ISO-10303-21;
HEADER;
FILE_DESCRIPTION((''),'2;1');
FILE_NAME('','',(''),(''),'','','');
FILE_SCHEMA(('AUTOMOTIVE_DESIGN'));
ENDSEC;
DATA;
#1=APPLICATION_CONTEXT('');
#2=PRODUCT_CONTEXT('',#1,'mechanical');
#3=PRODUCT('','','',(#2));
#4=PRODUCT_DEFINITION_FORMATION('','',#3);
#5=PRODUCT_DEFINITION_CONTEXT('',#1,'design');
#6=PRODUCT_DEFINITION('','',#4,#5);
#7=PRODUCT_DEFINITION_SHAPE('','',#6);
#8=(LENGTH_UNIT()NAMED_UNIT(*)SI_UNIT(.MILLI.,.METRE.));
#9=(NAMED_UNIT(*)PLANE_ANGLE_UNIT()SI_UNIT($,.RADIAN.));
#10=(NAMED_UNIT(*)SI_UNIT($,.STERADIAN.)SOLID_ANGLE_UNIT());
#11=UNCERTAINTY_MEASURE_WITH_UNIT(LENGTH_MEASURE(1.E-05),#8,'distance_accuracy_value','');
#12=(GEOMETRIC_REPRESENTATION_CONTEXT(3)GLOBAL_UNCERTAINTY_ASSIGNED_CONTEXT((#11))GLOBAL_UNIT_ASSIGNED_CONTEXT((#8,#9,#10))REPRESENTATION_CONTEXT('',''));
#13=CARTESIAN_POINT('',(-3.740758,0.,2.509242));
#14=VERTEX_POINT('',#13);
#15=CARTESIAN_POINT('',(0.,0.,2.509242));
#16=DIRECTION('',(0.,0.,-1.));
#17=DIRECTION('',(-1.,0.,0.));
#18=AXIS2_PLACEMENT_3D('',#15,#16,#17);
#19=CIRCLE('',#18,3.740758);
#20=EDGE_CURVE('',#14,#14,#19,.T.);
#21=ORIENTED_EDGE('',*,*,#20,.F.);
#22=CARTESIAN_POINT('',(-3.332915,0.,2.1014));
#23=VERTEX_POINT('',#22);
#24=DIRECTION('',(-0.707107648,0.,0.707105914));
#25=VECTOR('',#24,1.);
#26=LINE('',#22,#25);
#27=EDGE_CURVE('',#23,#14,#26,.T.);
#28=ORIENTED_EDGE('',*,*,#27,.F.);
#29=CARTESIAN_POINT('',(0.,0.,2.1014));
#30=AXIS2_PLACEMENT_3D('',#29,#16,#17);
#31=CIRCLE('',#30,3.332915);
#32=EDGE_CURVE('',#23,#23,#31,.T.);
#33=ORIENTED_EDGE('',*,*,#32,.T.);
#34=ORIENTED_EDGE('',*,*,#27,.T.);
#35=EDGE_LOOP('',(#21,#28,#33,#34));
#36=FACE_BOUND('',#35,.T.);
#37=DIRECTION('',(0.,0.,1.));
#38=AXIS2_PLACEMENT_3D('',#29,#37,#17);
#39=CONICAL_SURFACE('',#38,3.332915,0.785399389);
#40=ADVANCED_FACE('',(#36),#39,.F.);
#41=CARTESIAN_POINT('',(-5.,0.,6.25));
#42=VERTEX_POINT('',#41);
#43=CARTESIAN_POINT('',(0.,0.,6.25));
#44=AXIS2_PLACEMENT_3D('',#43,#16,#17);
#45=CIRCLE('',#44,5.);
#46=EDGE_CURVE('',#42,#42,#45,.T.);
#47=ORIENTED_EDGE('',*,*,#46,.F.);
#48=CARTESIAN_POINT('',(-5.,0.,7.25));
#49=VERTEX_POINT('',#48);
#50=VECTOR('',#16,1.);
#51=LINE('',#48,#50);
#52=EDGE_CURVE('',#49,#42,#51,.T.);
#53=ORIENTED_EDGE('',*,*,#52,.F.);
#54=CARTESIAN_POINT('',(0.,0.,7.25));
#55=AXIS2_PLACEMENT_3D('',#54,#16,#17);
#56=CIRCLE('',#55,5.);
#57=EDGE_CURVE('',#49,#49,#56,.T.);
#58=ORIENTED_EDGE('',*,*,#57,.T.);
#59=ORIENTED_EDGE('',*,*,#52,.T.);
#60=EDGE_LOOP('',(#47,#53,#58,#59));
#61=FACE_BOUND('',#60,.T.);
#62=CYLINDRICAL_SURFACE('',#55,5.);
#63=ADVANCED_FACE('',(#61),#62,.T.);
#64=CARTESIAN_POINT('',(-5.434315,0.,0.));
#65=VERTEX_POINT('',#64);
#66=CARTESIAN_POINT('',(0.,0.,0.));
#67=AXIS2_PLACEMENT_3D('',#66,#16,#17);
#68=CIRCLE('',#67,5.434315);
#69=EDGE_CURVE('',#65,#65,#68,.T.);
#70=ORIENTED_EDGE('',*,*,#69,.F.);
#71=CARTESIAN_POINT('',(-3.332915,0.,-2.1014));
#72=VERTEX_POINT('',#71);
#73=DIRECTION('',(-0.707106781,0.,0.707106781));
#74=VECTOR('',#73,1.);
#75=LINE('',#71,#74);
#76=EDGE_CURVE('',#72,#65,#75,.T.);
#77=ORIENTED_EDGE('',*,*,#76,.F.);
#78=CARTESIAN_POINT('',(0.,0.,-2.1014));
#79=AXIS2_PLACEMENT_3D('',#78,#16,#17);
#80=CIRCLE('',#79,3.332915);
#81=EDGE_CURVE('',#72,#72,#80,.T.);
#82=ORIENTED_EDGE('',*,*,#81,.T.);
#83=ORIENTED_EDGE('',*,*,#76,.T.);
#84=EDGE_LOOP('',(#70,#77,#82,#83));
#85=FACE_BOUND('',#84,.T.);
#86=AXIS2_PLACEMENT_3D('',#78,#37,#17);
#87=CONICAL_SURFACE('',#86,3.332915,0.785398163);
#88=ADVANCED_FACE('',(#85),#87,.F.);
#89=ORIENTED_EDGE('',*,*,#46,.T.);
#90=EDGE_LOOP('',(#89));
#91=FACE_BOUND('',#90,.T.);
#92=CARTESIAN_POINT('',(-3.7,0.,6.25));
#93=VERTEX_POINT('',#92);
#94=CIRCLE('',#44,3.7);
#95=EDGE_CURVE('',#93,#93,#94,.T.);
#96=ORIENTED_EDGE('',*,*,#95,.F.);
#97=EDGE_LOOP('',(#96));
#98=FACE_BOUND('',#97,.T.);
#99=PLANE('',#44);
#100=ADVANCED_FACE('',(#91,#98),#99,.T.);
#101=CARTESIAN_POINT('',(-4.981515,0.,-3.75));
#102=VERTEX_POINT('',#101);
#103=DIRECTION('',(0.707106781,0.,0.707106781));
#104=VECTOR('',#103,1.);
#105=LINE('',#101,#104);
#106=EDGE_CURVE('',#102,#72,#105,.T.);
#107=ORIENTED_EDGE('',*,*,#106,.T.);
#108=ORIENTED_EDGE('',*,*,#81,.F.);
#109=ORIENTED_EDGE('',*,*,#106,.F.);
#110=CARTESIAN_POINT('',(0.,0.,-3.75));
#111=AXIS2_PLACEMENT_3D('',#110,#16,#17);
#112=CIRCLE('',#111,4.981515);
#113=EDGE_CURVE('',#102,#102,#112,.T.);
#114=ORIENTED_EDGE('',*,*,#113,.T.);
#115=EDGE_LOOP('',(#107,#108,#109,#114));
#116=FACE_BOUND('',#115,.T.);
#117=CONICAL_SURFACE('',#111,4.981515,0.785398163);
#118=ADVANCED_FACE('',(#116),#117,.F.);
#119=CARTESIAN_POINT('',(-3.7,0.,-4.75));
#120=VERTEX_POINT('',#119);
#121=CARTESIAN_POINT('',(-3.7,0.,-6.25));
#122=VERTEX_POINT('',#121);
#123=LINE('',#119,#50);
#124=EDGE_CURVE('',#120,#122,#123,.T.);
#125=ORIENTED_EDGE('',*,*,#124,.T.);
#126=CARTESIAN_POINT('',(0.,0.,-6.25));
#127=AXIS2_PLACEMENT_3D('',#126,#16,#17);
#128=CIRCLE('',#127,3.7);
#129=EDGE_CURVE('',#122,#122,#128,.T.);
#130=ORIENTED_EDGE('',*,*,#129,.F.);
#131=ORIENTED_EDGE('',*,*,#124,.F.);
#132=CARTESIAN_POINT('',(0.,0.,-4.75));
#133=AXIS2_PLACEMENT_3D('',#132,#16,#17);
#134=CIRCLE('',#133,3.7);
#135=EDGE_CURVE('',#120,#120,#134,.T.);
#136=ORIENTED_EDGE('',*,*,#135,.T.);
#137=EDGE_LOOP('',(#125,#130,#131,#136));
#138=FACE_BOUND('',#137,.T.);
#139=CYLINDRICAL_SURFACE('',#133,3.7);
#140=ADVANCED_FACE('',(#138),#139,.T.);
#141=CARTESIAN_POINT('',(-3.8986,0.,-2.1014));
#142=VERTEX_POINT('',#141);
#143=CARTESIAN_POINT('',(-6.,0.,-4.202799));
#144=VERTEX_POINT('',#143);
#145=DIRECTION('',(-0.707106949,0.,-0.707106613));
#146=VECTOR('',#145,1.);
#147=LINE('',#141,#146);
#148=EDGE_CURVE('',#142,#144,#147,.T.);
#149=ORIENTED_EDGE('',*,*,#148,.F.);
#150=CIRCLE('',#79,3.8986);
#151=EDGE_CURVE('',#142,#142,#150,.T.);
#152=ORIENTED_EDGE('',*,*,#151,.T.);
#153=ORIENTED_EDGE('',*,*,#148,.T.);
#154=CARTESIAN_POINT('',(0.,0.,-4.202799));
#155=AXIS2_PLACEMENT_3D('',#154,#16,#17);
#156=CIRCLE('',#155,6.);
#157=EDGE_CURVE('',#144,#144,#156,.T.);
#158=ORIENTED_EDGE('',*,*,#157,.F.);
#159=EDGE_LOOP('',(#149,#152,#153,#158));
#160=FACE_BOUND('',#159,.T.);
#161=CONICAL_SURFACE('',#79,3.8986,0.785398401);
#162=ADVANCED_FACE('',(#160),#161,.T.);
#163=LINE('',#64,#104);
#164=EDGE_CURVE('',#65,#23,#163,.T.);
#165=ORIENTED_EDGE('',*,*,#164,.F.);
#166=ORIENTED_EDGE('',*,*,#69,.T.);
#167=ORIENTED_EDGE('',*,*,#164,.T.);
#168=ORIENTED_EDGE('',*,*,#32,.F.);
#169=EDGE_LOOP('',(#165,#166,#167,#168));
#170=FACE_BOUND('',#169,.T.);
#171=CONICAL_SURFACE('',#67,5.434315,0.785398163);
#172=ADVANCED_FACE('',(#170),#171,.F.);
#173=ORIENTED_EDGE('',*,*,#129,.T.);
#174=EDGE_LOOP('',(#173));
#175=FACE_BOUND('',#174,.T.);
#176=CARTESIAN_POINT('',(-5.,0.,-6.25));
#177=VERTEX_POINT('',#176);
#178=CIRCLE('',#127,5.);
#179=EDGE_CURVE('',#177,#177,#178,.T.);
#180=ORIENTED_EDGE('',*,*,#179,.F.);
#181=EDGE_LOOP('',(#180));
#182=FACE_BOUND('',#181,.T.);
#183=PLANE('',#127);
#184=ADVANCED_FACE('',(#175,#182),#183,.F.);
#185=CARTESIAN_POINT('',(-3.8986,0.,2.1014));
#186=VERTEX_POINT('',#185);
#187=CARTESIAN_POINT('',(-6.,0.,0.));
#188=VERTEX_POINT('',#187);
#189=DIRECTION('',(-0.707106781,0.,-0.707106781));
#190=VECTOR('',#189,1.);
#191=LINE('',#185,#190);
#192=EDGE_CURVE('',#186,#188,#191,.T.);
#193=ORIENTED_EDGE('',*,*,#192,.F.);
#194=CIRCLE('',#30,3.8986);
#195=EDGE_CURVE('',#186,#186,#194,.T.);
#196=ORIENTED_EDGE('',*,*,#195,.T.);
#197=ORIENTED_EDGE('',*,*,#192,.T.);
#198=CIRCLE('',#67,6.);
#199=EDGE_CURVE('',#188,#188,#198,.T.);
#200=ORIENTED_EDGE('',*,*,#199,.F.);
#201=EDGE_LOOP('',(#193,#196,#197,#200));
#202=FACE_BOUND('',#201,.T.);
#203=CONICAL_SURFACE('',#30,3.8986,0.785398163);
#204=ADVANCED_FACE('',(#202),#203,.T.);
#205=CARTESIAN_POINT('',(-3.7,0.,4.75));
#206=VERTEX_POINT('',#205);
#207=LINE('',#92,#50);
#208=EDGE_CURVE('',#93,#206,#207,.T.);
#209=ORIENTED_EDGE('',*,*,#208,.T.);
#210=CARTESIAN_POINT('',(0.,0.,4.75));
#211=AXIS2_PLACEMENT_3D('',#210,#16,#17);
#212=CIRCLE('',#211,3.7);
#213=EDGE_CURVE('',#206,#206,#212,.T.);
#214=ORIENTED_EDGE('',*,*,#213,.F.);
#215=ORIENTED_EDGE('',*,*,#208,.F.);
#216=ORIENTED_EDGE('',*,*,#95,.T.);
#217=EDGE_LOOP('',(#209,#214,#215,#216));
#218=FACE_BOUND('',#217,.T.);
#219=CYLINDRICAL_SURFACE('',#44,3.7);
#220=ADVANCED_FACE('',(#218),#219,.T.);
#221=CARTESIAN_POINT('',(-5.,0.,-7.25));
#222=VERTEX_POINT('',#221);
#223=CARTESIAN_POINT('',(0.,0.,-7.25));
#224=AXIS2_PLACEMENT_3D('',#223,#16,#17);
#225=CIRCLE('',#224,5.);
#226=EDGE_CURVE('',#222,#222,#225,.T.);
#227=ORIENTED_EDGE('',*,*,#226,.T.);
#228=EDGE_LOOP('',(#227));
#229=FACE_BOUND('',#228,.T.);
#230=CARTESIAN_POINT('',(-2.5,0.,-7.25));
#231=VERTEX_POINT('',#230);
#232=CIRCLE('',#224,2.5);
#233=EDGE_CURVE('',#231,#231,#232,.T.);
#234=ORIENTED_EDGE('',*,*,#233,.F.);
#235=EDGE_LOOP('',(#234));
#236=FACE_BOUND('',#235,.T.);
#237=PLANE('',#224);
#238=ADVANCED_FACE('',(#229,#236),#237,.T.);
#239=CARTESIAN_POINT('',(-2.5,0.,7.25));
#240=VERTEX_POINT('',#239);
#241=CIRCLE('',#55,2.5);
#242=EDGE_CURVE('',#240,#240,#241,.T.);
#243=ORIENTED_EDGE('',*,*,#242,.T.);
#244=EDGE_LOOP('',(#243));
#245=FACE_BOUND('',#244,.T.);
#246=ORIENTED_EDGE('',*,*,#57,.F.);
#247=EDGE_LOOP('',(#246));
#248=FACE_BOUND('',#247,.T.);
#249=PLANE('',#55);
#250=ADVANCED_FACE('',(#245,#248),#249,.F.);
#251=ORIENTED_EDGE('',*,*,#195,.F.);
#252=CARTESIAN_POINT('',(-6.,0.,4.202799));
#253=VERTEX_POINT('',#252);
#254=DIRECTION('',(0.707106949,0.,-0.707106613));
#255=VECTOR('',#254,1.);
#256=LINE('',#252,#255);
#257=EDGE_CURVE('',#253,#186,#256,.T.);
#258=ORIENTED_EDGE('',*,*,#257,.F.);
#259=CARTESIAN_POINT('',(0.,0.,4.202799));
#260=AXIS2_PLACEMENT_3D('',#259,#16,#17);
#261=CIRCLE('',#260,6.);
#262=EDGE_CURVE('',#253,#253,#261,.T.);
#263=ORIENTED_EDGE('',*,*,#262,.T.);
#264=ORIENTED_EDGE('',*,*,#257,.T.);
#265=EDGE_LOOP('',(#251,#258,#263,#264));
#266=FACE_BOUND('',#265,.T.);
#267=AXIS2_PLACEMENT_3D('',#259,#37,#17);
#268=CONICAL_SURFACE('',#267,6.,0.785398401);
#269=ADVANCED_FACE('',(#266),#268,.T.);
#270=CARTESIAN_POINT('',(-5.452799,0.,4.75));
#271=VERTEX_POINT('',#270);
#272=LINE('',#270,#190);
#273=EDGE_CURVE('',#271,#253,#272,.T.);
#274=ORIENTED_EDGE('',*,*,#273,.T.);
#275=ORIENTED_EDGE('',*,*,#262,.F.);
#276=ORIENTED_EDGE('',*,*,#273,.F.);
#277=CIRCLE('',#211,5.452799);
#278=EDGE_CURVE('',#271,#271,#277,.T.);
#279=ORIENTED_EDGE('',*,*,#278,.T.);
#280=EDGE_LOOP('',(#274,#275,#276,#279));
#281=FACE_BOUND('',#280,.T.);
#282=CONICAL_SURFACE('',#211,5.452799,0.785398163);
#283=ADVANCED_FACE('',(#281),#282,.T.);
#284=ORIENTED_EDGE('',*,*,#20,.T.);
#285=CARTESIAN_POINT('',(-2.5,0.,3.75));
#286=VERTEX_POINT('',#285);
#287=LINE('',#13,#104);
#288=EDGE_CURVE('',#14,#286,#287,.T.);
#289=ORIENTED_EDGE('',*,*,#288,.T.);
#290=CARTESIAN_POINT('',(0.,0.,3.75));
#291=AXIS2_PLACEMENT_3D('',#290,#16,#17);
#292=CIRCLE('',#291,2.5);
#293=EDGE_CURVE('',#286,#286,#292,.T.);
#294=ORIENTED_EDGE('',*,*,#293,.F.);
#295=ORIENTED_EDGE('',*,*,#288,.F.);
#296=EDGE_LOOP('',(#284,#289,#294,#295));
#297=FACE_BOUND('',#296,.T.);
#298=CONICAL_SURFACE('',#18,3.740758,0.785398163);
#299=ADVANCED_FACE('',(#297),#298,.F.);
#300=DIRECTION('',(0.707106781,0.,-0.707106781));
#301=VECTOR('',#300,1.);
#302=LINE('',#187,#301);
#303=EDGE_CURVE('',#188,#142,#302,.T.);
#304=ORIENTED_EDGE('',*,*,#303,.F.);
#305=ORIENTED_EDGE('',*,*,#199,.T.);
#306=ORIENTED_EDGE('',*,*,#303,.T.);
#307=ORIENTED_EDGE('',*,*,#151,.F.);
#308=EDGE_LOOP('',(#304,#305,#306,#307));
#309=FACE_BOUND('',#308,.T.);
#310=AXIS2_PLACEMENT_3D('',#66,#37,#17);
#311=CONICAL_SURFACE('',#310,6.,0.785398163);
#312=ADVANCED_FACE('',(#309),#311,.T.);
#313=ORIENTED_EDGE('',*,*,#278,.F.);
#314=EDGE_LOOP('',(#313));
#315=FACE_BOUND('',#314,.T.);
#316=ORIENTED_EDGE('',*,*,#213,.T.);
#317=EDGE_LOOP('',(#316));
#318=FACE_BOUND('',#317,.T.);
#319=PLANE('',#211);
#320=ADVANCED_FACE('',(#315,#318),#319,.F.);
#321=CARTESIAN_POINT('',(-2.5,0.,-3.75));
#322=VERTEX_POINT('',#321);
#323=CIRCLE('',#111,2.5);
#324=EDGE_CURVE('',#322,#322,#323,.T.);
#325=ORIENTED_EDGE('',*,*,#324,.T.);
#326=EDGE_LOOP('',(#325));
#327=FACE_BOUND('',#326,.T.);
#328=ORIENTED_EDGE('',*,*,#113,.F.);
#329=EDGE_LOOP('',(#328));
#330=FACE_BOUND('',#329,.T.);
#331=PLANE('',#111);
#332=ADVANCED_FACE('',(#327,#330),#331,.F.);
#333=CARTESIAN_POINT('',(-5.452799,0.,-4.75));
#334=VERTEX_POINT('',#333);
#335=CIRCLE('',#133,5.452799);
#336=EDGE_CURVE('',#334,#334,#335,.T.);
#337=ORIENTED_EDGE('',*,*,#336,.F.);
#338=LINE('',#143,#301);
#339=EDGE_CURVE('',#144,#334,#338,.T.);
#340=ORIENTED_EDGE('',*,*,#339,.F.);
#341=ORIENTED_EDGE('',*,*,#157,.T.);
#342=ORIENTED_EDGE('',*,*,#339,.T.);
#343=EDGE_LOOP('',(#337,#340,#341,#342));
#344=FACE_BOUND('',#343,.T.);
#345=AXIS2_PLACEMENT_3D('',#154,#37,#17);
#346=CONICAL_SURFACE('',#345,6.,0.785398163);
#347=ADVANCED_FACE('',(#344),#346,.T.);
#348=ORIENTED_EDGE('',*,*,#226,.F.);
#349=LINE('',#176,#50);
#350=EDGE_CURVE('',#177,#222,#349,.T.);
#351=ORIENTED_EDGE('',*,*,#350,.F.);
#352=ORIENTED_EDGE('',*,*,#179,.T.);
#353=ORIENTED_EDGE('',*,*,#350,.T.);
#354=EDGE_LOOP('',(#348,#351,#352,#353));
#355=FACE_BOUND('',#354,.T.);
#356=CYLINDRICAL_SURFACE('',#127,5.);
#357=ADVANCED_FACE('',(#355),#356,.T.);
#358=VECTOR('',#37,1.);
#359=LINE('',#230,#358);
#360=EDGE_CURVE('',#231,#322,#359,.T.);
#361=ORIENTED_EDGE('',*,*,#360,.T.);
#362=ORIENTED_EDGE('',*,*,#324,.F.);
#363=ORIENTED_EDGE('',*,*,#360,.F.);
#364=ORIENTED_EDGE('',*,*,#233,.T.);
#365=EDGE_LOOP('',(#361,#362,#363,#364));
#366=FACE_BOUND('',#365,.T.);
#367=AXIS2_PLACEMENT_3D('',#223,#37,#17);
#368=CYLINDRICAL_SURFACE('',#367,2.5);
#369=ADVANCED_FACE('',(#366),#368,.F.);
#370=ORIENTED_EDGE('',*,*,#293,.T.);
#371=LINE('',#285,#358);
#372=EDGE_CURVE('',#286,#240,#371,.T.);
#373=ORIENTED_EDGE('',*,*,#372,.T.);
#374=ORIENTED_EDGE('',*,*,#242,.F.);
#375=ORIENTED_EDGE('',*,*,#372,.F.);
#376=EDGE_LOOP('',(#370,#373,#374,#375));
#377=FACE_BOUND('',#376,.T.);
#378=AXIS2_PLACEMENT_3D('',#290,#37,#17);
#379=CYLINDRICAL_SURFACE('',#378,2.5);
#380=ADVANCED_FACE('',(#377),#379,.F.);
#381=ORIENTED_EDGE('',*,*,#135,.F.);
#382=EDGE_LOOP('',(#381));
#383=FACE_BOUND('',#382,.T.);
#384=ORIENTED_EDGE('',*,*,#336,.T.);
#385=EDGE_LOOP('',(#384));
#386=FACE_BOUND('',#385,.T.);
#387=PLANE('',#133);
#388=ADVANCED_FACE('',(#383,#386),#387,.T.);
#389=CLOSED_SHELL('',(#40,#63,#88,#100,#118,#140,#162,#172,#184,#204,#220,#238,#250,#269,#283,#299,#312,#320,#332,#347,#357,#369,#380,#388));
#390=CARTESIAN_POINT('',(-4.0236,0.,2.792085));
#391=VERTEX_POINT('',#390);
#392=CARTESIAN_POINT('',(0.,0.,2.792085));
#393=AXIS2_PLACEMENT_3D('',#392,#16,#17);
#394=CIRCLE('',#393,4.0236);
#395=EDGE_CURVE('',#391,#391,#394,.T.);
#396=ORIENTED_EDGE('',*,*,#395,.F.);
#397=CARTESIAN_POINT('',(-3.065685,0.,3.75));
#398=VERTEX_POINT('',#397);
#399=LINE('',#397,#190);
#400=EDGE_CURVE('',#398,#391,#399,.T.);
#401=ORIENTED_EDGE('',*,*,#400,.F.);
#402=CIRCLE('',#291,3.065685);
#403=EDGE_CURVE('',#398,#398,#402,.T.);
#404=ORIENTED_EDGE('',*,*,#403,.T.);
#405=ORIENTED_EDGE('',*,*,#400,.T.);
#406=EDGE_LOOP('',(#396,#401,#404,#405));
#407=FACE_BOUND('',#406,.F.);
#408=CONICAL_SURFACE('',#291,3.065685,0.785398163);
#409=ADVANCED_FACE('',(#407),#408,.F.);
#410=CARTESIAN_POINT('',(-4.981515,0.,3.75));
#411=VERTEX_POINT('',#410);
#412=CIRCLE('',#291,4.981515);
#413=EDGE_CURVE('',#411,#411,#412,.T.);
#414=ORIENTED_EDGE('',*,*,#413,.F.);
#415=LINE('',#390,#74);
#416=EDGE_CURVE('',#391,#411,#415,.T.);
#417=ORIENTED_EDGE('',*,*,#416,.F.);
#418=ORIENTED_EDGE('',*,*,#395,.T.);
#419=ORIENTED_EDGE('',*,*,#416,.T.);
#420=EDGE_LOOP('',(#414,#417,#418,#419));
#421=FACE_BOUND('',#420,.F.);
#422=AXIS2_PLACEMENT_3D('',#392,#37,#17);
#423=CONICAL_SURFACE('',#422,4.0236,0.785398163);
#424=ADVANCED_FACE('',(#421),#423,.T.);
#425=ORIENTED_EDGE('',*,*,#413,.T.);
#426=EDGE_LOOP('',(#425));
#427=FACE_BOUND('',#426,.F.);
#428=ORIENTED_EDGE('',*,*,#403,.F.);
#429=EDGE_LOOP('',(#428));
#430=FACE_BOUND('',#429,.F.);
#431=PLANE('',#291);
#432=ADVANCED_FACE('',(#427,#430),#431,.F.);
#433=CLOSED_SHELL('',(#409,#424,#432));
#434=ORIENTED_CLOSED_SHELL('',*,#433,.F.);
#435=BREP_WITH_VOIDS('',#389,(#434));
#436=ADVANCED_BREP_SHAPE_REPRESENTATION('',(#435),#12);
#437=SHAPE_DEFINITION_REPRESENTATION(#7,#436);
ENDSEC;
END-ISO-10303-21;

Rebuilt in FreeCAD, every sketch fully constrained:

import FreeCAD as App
import Part
import Sketcher

V = App.Vector


def add_polygon(sketch, points):
    """Adds a closed chain of lines whose ends are joined by coincident constraints."""
    first, n = sketch.GeometryCount, len(points)
    for a, b in zip(points, points[1:] + points[:1]):
        sketch.addGeometry(Part.LineSegment(App.Vector(*a, 0), App.Vector(*b, 0)), False)
    for i in range(n):
        sketch.addConstraint(Sketcher.Constraint("Coincident", first + i, 2, first + (i + 1) % n, 1))

doc = App.newDocument("Part")
body = doc.addObject("PartDesign::Body", "Body")

sketch1 = body.newObject("Sketcher::SketchObject", "Sketch")
sketch1.AttachmentSupport = (doc.getObject("XZ_Plane"), [""])
sketch1.MapMode = "FlatFace"
add_polygon(sketch1, [(-2.5, 3.75), (-2.5, 7.25), (-5, 7.25), (-5, 6.25), (-3.7, 6.25), (-3.7, 4.75), (-5.452799, 4.75), (-6, 4.202799), (-3.8986, 2.1014), (-6, 0), (-3.8986, -2.1014), (-6, -4.202799), (-5.452799, -4.75), (-3.7, -4.75), (-3.7, -6.25), (-5, -6.25), (-5, -7.25), (-2.5, -7.25), (-2.5, -3.75), (-4.981515, -3.75), (-3.332915, -2.1014), (-5.434315, 0), (-3.332915, 2.1014), (-3.740758, 2.509242)])
add_polygon(sketch1, [(-4.0236, 2.792085), (-4.981515, 3.75), (-3.065685, 3.75)])
sketch1.addConstraint([
    Sketcher.Constraint("Vertical", 0),
    Sketcher.Constraint("Horizontal", 1),
    Sketcher.Constraint("Vertical", 2),
    Sketcher.Constraint("Horizontal", 3),
    Sketcher.Constraint("Vertical", 4),
    Sketcher.Constraint("Horizontal", 5),
    Sketcher.Constraint("Horizontal", 12),
    Sketcher.Constraint("Vertical", 13),
    Sketcher.Constraint("Horizontal", 14),
    Sketcher.Constraint("Vertical", 15),
    Sketcher.Constraint("Horizontal", 16),
    Sketcher.Constraint("Vertical", 17),
    Sketcher.Constraint("Horizontal", 18),
    Sketcher.Constraint("Horizontal", 25),
    Sketcher.Constraint("Symmetric", 7, 2, 9, 2, -1),
    Sketcher.Constraint("Symmetric", 6, 2, 10, 2, -1),
    Sketcher.Constraint("Symmetric", 5, 2, 11, 2, -1),
    Sketcher.Constraint("Symmetric", 3, 2, 13, 2, -1),
    Sketcher.Constraint("Symmetric", 1, 2, 15, 2, -1),
    Sketcher.Constraint("Symmetric", 19, 2, 21, 2, -1),
    Sketcher.Constraint("Symmetric", 17, 2, 23, 2, -1),
    Sketcher.Constraint("Symmetric", 18, 2, 24, 2, -1),
    Sketcher.Constraint("PointOnObject", 8, 2, -1),
    Sketcher.Constraint("PointOnObject", 20, 2, -1),
    Sketcher.Constraint("Perpendicular", 6, 7),
    Sketcher.Constraint("Perpendicular", 7, 8),
    Sketcher.Constraint("Perpendicular", 8, 9),
    Sketcher.Constraint("Perpendicular", 11, 19),
    Sketcher.Constraint("Perpendicular", 19, 20),
    Sketcher.Constraint("Perpendicular", 21, 22),
    Sketcher.Constraint("Perpendicular", 22, 23),
    Sketcher.Constraint("Perpendicular", 23, 24),
    Sketcher.Constraint("Perpendicular", 24, 26),
    Sketcher.Constraint("Horizontal", 9, 2, 19, 2),
    Sketcher.Constraint("Vertical", 6, 2, 8, 2),
    Sketcher.Constraint("DistanceY", 2, 2, 2, 1, 1.0),
    Sketcher.Constraint("DistanceX", 1, 2, 1, 1, 2.5),
    Sketcher.Constraint("DistanceX", 3, 1, 3, 2, 1.3),
    Sketcher.Constraint("DistanceY", 0, 1, 0, 2, 3.5),
    Sketcher.Constraint("DistanceY", 4, 2, 4, 1, 1.5),
    Sketcher.Constraint("DistanceX", 1, 2, -1, 1, 5.0),
    Sketcher.Constraint("DistanceX", 6, 2, -1, 1, 6.0),
    Sketcher.Constraint("DistanceY", -1, 1, 0, 2, 7.25),
    Sketcher.Constraint("DistanceX", 5, 2, 5, 1, 1.752799),
    Sketcher.Constraint("DistanceX", 26, 2, 7, 2, 0.125),
    Sketcher.Constraint("DistanceX", 25, 1, 25, 2, 1.91583),
])
revolution = body.newObject("PartDesign::Revolution", "Revolution")
revolution.Profile = sketch1
revolution.ReferenceAxis = (sketch1, ["V_Axis"])
revolution.Angle = 360

doc.recompute()
